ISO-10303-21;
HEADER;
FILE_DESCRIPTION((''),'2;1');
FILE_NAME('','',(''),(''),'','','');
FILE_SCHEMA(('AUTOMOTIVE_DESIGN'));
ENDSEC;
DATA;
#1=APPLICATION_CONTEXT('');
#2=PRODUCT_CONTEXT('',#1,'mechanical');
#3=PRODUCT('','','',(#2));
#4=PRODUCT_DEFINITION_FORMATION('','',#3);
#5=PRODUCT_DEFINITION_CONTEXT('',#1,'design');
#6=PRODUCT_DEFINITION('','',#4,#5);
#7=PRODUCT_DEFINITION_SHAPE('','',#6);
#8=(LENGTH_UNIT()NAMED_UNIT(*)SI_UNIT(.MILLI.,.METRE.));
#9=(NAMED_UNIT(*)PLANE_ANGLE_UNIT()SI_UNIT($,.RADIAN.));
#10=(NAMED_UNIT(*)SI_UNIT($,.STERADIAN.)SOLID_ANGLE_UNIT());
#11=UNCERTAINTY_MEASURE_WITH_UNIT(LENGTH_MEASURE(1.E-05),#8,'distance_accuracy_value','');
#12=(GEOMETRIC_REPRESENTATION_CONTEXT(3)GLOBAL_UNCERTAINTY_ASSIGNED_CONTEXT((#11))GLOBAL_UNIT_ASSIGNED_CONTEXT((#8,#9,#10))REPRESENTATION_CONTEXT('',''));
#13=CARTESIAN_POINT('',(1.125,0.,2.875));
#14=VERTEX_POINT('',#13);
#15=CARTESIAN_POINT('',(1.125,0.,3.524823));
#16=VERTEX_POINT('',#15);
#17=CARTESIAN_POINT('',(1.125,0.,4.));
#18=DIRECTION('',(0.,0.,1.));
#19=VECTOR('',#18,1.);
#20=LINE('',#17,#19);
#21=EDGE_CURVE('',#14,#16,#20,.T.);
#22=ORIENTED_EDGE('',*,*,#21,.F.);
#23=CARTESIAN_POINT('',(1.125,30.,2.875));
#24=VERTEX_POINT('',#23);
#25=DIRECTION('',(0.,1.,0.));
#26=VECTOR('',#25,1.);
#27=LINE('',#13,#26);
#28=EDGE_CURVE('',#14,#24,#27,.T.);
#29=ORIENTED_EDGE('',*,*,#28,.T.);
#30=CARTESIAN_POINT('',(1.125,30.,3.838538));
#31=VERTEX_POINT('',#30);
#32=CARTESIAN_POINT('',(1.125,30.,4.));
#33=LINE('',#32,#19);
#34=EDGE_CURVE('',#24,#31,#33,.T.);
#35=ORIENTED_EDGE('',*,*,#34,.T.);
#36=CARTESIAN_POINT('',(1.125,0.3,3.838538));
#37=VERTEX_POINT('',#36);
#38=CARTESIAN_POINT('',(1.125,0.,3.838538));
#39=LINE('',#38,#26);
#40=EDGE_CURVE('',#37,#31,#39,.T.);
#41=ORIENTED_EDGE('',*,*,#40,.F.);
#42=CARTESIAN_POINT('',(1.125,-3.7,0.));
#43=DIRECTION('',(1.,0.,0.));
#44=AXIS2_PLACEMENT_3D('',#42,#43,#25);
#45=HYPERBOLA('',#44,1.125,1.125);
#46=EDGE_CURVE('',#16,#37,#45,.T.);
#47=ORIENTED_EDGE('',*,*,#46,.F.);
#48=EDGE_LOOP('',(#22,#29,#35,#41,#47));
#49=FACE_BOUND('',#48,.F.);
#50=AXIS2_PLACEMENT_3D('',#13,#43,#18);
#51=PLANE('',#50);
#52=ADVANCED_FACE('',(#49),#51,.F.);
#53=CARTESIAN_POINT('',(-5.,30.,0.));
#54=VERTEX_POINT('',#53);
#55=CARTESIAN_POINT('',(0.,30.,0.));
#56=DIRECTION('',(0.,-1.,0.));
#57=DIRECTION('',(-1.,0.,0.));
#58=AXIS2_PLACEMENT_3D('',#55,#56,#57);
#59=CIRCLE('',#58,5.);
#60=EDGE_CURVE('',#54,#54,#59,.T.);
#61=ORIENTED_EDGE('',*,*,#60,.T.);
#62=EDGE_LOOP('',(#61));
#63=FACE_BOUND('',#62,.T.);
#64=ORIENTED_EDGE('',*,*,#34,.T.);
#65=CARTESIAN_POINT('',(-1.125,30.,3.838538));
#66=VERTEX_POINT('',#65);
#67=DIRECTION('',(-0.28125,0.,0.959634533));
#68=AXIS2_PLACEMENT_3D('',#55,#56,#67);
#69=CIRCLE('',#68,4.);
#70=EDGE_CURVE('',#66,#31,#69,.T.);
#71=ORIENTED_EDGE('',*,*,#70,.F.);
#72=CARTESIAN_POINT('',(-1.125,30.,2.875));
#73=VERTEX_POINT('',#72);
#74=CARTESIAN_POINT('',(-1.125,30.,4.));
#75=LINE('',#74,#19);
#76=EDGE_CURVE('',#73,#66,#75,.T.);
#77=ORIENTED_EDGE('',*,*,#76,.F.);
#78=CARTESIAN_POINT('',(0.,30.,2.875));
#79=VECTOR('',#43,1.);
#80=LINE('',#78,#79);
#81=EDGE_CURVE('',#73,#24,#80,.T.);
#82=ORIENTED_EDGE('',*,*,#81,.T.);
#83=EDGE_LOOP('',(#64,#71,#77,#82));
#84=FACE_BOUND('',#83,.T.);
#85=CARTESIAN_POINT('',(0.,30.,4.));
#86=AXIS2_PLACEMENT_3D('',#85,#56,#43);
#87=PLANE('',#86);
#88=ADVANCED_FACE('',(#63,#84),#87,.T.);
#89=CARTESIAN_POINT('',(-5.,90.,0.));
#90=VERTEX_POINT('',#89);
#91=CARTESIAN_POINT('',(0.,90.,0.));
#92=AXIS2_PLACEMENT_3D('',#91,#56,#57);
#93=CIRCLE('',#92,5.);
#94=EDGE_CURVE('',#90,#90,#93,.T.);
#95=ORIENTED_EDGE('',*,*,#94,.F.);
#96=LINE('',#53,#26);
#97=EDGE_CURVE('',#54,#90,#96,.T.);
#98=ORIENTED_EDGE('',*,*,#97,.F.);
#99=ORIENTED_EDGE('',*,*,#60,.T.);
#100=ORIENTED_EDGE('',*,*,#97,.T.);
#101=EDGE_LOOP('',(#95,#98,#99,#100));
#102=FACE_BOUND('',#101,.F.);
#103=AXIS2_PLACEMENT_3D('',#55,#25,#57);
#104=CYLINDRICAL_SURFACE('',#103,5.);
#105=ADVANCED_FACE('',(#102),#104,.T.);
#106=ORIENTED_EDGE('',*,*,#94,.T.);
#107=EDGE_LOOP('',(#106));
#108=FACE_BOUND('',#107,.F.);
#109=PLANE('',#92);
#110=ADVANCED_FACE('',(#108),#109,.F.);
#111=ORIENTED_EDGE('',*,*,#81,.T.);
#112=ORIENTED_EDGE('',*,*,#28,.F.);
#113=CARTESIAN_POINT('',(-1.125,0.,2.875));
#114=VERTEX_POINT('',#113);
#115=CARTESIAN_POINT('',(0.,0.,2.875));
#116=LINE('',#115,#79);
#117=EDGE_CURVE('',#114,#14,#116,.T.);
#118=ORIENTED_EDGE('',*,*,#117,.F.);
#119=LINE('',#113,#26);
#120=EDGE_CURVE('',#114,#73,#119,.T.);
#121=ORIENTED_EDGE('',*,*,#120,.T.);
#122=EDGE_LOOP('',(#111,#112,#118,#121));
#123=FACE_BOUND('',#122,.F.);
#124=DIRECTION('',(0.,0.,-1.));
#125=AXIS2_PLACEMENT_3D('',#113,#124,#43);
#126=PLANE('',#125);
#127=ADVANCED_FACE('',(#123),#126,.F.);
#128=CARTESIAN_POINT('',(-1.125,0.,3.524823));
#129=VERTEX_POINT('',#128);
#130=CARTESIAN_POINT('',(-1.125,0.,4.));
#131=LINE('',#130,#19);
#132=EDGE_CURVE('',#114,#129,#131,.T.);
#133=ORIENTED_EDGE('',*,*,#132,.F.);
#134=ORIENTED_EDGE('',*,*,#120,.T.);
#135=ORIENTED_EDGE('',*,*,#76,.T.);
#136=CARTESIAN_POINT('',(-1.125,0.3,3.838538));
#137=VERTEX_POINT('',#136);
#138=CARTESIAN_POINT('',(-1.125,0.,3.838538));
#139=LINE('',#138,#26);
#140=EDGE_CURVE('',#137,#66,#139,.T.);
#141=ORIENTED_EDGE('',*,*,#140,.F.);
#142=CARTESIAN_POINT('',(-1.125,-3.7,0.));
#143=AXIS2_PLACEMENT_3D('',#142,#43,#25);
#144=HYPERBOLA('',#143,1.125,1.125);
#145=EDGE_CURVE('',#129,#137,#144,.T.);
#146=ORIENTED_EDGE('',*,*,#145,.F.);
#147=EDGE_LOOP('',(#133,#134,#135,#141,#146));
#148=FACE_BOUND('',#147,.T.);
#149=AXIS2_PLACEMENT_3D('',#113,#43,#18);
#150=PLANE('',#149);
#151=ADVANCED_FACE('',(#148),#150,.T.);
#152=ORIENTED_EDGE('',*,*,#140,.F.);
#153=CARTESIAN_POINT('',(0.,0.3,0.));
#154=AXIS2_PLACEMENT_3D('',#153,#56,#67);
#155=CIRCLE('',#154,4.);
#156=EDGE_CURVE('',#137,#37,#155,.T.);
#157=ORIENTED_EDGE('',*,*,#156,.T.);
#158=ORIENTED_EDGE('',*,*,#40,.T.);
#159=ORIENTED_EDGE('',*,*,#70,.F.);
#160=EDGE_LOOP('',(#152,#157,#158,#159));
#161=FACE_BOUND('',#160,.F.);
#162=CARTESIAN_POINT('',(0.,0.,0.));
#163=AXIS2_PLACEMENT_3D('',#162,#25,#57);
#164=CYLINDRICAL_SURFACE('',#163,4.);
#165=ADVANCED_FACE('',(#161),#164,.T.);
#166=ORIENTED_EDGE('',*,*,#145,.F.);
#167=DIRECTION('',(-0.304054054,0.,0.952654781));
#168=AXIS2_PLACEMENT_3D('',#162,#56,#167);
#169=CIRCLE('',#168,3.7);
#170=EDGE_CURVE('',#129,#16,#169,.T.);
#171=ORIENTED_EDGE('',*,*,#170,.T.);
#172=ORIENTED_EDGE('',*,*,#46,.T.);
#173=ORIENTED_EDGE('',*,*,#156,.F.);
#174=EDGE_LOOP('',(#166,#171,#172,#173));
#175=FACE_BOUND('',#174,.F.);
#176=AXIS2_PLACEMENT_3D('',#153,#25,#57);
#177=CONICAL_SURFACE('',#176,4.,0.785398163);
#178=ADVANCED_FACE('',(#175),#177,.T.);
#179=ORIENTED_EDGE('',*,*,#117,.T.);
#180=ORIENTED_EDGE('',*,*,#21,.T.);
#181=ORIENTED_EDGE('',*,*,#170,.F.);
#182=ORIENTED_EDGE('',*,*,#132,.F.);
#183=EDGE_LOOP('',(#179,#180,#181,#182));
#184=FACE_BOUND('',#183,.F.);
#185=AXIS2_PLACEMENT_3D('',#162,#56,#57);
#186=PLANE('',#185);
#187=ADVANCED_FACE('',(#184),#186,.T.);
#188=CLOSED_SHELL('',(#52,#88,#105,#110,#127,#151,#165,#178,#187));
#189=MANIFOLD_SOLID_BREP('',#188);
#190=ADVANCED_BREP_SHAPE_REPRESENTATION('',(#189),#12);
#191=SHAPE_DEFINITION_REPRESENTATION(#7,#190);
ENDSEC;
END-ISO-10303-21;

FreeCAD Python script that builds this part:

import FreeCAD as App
import Part
import Sketcher

V = App.Vector
Q = App.Units.Quantity


def edges_at(feature, points):
    """Names of the edges that pass closest to the given points."""
    edges = feature.Shape.Edges
    near = lambda p: min(range(len(edges)), key=lambda i: edges[i].distToShape(Part.Vertex(*p))[0])
    return sorted({f"Edge{near(p) + 1}" for p in points})


def add_polygon(sketch, points):
    """Adds a closed chain of lines whose ends are joined by coincident constraints."""
    first, n = sketch.GeometryCount, len(points)
    for a, b in zip(points, points[1:] + points[:1]):
        sketch.addGeometry(Part.LineSegment(App.Vector(*a, 0), App.Vector(*b, 0)), False)
    for i in range(n):
        sketch.addConstraint(Sketcher.Constraint("Coincident", first + i, 2, first + (i + 1) % n, 1))

doc = App.newDocument("Part")
body = doc.addObject("PartDesign::Body", "Body")

# Sketch on XY plane
sketch1 = body.newObject("Sketcher::SketchObject", "Sketch")
sketch1.AttachmentSupport = (doc.getObject("XY_Plane"), [""])
sketch1.MapMode = "FlatFace"
add_polygon(sketch1, [(0, 0), (4, 0), (4, 30), (5, 30), (5, 90), (0, 90)])  # lines 0-5
sketch1.addConstraint([
    Sketcher.Constraint("Horizontal", 0),
    Sketcher.Constraint("Vertical", 1),
    Sketcher.Constraint("Horizontal", 2),
    Sketcher.Constraint("Vertical", 3),
    Sketcher.Constraint("Horizontal", 4),
    Sketcher.Constraint("Vertical", 5),
    Sketcher.Constraint("Coincident", 5, 2, -1, 1),
    Sketcher.Constraint("DistanceX", 0, 1, 0, 2, Q("4 mm")),
    Sketcher.Constraint("DistanceX", 2, 1, 2, 2, Q("1 mm")),
    Sketcher.Constraint("DistanceY", 1, 1, 1, 2, Q("30 mm")),
    Sketcher.Constraint("DistanceY", 3, 1, 3, 2, Q("60 mm")),
])
revolution = body.newObject("PartDesign::Revolution", "Revolution")
revolution.Profile = sketch1
revolution.ReferenceAxis = (sketch1, ["V_Axis"])
revolution.Angle = 360
doc.recompute()

chamfer = body.newObject("PartDesign::Chamfer", "Chamfer")
chamfer.Base = (revolution, edges_at(revolution, [(4, 0, 0)]))
chamfer.Size = 0.3

# Sketch on XZ plane
sketch2 = body.newObject("Sketcher::SketchObject", "Sketch001")
sketch2.AttachmentSupport = (doc.getObject("XZ_Plane"), [""])
sketch2.MapMode = "FlatFace"
add_polygon(sketch2, [(-1.1, 5.1), (-1.1, 2.9), (1.1, 2.9), (1.1, 5.1)])  # lines 0-3
sketch2.addConstraint([
    Sketcher.Constraint("Vertical", 0),
    Sketcher.Constraint("Horizontal", 1),
    Sketcher.Constraint("Vertical", 2),
    Sketcher.Constraint("Horizontal", 3),
    Sketcher.Constraint("Equal", 3, 0),
    Sketcher.Constraint("DistanceX", 1, 1, 1, 2, Q("2.25 mm")),
    Sketcher.Constraint("DistanceX", 0, 2, -1, 1, Q("1.125 mm")),
    Sketcher.Constraint("DistanceY", -1, 1, 0, 2, Q("2.875 mm")),
])
pocket1 = body.newObject("PartDesign::Pocket", "Pocket")
pocket1.Profile = sketch2
pocket1.Length = 30

doc.recompute()
